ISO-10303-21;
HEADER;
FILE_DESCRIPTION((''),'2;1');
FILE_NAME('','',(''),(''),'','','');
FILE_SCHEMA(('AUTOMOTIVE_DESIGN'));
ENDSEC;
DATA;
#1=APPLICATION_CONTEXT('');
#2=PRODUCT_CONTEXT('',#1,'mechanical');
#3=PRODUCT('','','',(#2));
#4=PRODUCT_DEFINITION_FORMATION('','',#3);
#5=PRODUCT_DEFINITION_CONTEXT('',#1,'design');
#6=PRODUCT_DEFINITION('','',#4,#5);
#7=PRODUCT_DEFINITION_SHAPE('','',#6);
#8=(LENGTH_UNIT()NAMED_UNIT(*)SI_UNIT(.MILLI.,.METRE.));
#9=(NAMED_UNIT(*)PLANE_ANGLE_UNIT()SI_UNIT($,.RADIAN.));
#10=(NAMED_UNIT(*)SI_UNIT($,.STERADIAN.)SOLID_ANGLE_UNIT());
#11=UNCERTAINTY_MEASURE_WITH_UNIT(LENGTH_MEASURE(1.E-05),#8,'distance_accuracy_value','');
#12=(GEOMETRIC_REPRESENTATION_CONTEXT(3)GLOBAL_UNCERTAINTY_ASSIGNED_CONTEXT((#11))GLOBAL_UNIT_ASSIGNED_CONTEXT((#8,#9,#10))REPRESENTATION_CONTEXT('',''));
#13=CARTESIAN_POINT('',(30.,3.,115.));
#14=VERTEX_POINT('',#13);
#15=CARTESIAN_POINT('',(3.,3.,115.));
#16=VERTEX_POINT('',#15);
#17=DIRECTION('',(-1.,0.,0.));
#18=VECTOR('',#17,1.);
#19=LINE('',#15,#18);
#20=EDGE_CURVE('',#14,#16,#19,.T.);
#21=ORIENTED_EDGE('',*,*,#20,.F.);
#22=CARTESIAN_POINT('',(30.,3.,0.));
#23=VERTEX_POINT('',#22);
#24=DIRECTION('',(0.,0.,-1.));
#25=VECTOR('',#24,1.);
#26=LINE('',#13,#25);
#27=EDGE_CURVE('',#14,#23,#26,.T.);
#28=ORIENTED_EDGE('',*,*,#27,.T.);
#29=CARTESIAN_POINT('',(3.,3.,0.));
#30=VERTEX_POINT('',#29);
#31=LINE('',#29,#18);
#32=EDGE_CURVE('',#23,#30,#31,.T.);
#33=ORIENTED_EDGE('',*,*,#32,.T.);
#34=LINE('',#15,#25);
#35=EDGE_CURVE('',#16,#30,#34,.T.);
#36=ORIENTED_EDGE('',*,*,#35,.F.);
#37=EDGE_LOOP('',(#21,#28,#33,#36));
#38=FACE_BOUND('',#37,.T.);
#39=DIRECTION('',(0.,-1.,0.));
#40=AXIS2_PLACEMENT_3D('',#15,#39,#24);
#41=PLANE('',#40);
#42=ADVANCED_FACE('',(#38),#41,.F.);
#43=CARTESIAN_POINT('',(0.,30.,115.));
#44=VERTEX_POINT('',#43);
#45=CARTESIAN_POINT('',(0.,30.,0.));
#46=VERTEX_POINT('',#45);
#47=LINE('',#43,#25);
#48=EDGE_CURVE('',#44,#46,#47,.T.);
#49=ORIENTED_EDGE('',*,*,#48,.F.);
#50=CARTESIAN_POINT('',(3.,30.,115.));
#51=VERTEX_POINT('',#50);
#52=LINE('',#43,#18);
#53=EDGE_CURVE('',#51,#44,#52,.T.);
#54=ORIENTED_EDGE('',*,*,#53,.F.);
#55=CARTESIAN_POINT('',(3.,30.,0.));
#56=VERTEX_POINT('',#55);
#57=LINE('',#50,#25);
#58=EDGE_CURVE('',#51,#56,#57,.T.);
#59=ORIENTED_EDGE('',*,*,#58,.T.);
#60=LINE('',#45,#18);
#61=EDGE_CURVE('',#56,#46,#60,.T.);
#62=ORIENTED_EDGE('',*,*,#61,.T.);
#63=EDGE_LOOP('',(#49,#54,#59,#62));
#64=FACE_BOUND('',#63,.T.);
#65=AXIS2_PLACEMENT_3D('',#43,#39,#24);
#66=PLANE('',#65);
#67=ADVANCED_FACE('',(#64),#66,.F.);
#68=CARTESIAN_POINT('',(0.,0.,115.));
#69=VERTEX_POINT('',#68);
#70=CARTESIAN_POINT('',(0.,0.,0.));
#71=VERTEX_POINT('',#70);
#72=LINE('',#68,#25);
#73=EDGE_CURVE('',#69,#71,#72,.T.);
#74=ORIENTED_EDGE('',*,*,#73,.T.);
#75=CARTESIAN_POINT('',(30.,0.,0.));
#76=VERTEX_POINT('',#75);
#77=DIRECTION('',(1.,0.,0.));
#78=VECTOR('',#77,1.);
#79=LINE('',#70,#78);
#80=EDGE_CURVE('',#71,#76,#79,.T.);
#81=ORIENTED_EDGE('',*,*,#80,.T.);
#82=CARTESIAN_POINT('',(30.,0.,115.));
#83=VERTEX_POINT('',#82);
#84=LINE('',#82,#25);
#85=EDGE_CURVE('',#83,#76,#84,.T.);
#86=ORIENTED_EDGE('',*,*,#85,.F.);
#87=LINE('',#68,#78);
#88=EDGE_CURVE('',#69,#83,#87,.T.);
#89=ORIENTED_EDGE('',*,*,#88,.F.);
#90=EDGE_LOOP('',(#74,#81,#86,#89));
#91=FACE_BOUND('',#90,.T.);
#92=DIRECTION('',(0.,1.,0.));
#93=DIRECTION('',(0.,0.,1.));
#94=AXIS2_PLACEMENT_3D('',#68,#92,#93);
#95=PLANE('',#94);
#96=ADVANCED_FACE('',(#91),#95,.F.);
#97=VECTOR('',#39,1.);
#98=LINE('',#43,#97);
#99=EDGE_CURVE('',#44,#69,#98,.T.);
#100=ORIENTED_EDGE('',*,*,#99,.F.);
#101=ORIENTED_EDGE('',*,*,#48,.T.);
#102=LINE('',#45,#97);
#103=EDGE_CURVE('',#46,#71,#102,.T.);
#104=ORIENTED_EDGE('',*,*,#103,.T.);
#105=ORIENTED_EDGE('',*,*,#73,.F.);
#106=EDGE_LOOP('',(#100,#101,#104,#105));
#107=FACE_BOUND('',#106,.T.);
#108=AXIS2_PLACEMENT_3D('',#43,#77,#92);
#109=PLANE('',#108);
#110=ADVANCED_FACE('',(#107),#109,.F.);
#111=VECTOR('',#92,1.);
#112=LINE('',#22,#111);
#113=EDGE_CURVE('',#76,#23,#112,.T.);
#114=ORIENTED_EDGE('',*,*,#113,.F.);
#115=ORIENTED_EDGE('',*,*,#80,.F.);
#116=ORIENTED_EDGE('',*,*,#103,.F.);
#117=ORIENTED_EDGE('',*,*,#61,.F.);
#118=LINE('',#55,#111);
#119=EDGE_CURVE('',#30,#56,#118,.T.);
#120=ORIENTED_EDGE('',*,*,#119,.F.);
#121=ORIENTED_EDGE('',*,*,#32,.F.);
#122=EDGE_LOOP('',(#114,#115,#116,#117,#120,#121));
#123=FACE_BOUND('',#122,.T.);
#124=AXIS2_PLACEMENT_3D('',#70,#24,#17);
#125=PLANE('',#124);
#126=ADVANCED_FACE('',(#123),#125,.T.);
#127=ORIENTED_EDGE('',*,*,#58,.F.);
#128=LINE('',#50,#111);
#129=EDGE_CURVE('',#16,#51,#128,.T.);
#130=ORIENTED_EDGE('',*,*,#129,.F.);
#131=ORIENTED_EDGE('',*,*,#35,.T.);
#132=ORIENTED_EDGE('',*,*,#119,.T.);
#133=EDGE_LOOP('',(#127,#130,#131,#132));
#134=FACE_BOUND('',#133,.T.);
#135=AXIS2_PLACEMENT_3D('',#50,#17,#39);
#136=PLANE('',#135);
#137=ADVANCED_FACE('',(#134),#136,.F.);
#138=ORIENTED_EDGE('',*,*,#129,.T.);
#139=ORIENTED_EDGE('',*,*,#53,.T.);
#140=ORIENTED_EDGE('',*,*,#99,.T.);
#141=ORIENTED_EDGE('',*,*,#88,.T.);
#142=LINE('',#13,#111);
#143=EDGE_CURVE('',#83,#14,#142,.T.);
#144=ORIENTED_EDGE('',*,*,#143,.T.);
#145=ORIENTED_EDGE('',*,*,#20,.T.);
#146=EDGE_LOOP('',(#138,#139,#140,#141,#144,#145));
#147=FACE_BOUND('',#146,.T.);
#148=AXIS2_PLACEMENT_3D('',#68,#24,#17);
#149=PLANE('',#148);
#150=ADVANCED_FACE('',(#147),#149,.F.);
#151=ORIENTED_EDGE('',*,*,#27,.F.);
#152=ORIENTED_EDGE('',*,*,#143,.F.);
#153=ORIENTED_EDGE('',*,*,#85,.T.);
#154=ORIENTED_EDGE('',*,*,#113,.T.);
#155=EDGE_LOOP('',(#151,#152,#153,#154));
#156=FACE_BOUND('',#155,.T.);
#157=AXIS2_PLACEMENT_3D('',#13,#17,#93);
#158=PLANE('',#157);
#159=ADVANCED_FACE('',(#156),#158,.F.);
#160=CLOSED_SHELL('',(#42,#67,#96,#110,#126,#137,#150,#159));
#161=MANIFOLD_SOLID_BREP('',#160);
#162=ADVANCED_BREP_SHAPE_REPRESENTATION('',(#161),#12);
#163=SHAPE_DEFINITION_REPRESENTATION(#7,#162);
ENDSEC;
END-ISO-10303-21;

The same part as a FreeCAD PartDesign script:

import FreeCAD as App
import Part
import Sketcher

V = App.Vector

doc = App.newDocument("Part")
body = doc.addObject("PartDesign::Body", "Body")

# Sketch on XY plane
sketch1 = body.newObject("Sketcher::SketchObject", "Sketch")
sketch1.AttachmentSupport = (doc.getObject("XY_Plane"), [""])
sketch1.MapMode = "FlatFace"
sketch1.addGeometry([
    Part.LineSegment(V(0, 30, 0), V(0, 0, 0)),  # 0
    Part.LineSegment(V(0, 0, 0), V(30, 0, 0)),  # 1
    Part.LineSegment(V(30, 0, 0), V(30, 3, 0)),  # 2
    Part.LineSegment(V(30, 3, 0), V(3, 3, 0)),  # 3
    Part.LineSegment(V(3, 3, 0), V(3, 30, 0)),  # 4
    Part.LineSegment(V(3, 30, 0), V(0, 30, 0)),  # 5
], False)
sketch1.addConstraint([
    Sketcher.Constraint("Coincident", 0, 2, 1, 1),
    Sketcher.Constraint("Coincident", 1, 2, 2, 1),
    Sketcher.Constraint("Coincident", 2, 2, 3, 1),
    Sketcher.Constraint("Coincident", 3, 2, 4, 1),
    Sketcher.Constraint("Coincident", 4, 2, 5, 1),
    Sketcher.Constraint("Coincident", 5, 2, 0, 1),
    Sketcher.Constraint("Vertical", 0),
    Sketcher.Constraint("Horizontal", 1),
    Sketcher.Constraint("Vertical", 2),
    Sketcher.Constraint("Horizontal", 3),
    Sketcher.Constraint("Vertical", 4),
    Sketcher.Constraint("Horizontal", 5),
    Sketcher.Constraint("Coincident", 0, 2, -1, 1),
    Sketcher.Constraint("Equal", 1, 0),
    Sketcher.Constraint("Equal", 5, 2),
    Sketcher.Constraint("DistanceX", 1, 1, 1, 2, 30.0),
    Sketcher.Constraint("DistanceX", 3, 2, 3, 1, 27.0),
])
pad1 = body.newObject("PartDesign::Pad", "Pad")
pad1.Profile = sketch1
pad1.Length = 115

doc.recompute()
